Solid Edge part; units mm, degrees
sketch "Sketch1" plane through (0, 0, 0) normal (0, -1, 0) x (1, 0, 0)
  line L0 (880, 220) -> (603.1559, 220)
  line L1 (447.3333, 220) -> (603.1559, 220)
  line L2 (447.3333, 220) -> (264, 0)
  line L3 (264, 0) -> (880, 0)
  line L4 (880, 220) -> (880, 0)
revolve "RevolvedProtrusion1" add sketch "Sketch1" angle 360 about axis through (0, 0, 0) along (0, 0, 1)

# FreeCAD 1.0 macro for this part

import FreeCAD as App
import Part
import Sketcher

V = App.Vector


def add_polygon(sketch, points):
    """Adds a closed chain of lines whose ends are joined by coincident constraints."""
    first, n = sketch.GeometryCount, len(points)
    for a, b in zip(points, points[1:] + points[:1]):
        sketch.addGeometry(Part.LineSegment(App.Vector(*a, 0), App.Vector(*b, 0)), False)
    for i in range(n):
        sketch.addConstraint(Sketcher.Constraint("Coincident", first + i, 2, first + (i + 1) % n, 1))

doc = App.newDocument("Part")
body = doc.addObject("PartDesign::Body", "Body")

# Sketch on XZ plane
sketch1 = body.newObject("Sketcher::SketchObject", "Sketch")
sketch1.AttachmentSupport = (doc.getObject("XZ_Plane"), [""])
sketch1.MapMode = "FlatFace"
add_polygon(sketch1, [(880, 0), (880, 220), (447.3333, 220), (264, 0)])  # lines 0-3
sketch1.addConstraint(Sketcher.Constraint("Vertical", 0))
sketch1.addConstraint(Sketcher.Constraint("Horizontal", 1))
sketch1.addConstraint(Sketcher.Constraint("Horizontal", 3))
sketch1.addConstraint(Sketcher.Constraint("PointOnObject", 2, 2, -1))
sketch1.addConstraint(Sketcher.Constraint("DistanceX", 3, 1, 3, 2, 616.0))
sketch1.addConstraint(Sketcher.Constraint("DistanceY", 0, 1, 0, 2, 220.0))
sketch1.addConstraint(Sketcher.Constraint("DistanceX", -1, 1, 0, 2, 880.0))
sketch1.addConstraint(Sketcher.Constraint("DistanceX", 1, 2, 1, 1, 432.6667))
revolution = body.newObject("PartDesign::Revolution", "Revolution")
revolution.Profile = sketch1
revolution.ReferenceAxis = (sketch1, ["V_Axis"])
revolution.Angle = 360

doc.recompute()
